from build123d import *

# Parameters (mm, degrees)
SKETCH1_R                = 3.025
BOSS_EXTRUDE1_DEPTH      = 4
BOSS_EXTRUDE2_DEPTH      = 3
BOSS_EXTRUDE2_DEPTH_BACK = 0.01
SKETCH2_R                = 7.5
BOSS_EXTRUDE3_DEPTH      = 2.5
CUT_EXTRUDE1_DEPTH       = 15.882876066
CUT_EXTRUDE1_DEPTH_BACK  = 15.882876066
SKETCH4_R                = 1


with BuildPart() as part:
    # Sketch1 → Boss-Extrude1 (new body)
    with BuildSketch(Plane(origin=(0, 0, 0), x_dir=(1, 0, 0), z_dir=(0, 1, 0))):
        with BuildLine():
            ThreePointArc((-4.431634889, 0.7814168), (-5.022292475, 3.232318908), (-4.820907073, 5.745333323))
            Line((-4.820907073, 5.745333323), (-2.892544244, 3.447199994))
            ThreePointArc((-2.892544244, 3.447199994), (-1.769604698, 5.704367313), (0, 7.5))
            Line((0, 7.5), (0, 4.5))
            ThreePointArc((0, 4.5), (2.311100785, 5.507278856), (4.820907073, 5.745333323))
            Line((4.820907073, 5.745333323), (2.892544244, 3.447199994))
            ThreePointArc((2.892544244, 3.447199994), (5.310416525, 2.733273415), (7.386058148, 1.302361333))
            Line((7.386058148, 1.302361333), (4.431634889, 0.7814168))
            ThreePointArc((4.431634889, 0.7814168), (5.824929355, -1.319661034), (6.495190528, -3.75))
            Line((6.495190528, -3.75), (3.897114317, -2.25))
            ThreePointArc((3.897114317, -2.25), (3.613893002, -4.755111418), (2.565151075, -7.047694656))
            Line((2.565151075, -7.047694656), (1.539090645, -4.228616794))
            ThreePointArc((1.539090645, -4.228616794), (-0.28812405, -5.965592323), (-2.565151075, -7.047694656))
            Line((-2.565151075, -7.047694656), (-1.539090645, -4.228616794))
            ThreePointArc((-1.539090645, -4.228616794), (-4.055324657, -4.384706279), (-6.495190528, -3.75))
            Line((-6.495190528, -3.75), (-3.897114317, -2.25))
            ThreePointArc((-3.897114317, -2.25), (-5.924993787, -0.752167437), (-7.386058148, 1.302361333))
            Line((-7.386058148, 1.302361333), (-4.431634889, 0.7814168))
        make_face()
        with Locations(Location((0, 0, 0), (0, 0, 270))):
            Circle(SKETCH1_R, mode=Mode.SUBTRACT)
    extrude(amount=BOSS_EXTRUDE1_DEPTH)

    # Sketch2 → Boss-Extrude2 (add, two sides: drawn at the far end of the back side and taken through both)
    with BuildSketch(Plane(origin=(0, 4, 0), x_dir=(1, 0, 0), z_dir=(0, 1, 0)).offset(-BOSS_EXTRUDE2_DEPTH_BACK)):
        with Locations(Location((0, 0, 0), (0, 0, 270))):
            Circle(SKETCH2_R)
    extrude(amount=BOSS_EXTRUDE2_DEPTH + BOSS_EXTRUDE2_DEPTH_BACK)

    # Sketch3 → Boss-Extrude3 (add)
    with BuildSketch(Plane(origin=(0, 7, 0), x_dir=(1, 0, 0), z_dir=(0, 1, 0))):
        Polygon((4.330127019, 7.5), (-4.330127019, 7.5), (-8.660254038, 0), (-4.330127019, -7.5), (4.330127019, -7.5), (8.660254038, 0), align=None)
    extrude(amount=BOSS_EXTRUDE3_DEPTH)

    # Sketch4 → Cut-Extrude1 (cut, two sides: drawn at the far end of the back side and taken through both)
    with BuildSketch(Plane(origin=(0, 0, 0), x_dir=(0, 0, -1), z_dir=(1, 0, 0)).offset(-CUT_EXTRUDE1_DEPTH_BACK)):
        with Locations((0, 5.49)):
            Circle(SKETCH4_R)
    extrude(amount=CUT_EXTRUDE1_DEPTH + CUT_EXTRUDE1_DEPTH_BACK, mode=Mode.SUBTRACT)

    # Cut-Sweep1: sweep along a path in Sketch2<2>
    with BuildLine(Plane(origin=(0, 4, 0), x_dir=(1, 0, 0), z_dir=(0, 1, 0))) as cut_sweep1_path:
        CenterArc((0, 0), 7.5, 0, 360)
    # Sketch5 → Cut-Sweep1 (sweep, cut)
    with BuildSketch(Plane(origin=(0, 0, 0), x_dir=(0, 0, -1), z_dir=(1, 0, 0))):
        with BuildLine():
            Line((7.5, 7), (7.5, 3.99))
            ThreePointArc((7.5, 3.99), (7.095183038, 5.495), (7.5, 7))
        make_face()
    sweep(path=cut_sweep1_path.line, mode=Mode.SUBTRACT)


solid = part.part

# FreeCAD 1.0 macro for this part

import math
import FreeCAD as App
import Part
import Sketcher
Q = App.Units.Quantity

doc = App.newDocument("Part")
params = doc.addObject("Spreadsheet::Sheet", "Params")
for row, (alias, value) in enumerate([
    ("sketch1_radius", "8 mm"),
    ("sketch1_diameter", "6.05 mm"),
    ("sketch1_height", "3 mm"),
    ("sketch1_length", "3 mm"),
    ("pad1_length", "4 mm"),
    ("sketch2_diameter", "15 mm"),
    ("pad2_length", "3 mm"),
    ("pad2_length2", "0.01 mm"),
    ("pad3_length", "2.5 mm"),
    ("sketch4_diameter", "2 mm"),
    ("sketch5_radius", "3 mm"),
    ("sketch5_width", "3.01 mm"),
    ("sketch6_diameter", "15 mm"),
], start=1):
    params.set(f"A{row}", alias)
    params.set(f"B{row}", "=" + value)
    params.setAlias(f"B{row}", alias)

body = doc.addObject("PartDesign::Body", "Body")

# Sketch on XZ plane
sketch1 = body.newObject("Sketcher::SketchObject", "Sketch")
sketch1.AttachmentSupport = (doc.getObject("XZ_Plane"), [""])
sketch1.MapMode = "FlatFace"
sketch1.addGeometry([
    Part.ArcOfCircle(Part.Circle(App.Vector(3, -3.9, 0), App.Vector(0, 0, 1), 8), math.radians(157), math.radians(194)),  # 0
    Part.LineSegment(App.Vector(-4.4, -0.8, 0), App.Vector(-7.4, -1.3, 0)),  # 1
    Part.ArcOfCircle(Part.Circle(App.Vector(-0.2, -4.9, 0), App.Vector(0, 0, 1), 8), math.radians(117), math.radians(154)),  # 2
    Part.LineSegment(App.Vector(-3.9, 2.2, 0), App.Vector(-6.5, 3.8, 0)),  # 3
    Part.ArcOfCircle(Part.Circle(App.Vector(-3.3, -3.6, 0), App.Vector(0, 0, 1), 8), math.radians(77), math.radians(114)),  # 4
    Part.LineSegment(App.Vector(-1.5, 4.2, 0), App.Vector(-2.6, 7, 0)),  # 5
    Part.ArcOfCircle(Part.Circle(App.Vector(-4.8, -0.6, 0), App.Vector(0, 0, 1), 8), math.radians(37), math.radians(74)),  # 6
    Part.LineSegment(App.Vector(1.5, 4.2, 0), App.Vector(2.6, 7, 0)),  # 7
    Part.ArcOfCircle(Part.Circle(App.Vector(-4.1, 2.6, 0), App.Vector(0, 0, 1), 8), math.radians(-3), math.radians(34)),  # 8
    Part.LineSegment(App.Vector(3.9, 2.2, 0), App.Vector(6.5, 3.8, 0)),  # 9
    Part.ArcOfCircle(Part.Circle(App.Vector(-1.5, 4.6, 0), App.Vector(0, 0, 1), 8), math.radians(-43), math.radians(-6)),  # 10
    Part.LineSegment(App.Vector(4.4, -0.8, 0), App.Vector(7.4, -1.3, 0)),  # 11
    Part.ArcOfCircle(Part.Circle(App.Vector(1.9, 4.5, 0), App.Vector(0, 0, 1), 8), math.radians(-83), math.radians(-46)),  # 12
    Part.LineSegment(App.Vector(2.9, -3.4, 0), App.Vector(4.8, -5.7, 0)),  # 13
    Part.ArcOfCircle(Part.Circle(App.Vector(4.3, 2.2, 0), App.Vector(0, 0, 1), 8), math.radians(-123), math.radians(-86)),  # 14
    Part.LineSegment(App.Vector(0, -4.5, 0), App.Vector(0, -7.5, 0)),  # 15
    Part.ArcOfCircle(Part.Circle(App.Vector(4.7, -1.1, 0), App.Vector(0, 0, 1), 8), math.radians(-163), math.radians(-126)),  # 16
    Part.LineSegment(App.Vector(-2.9, -3.4, 0), App.Vector(-4.8, -5.7, 0)),  # 17
    Part.Circle(App.Vector(0, 0, 0), App.Vector(0, 0, 1), 3),  # 18
], False)
sketch1.addConstraint([
    Sketcher.Constraint("Coincident", 0, 1, 1, 1),
    Sketcher.Constraint("Coincident", 1, 2, 2, 2),
    Sketcher.Constraint("Coincident", 2, 1, 3, 1),
    Sketcher.Constraint("Coincident", 3, 2, 4, 2),
    Sketcher.Constraint("Coincident", 4, 1, 5, 1),
    Sketcher.Constraint("Coincident", 5, 2, 6, 2),
    Sketcher.Constraint("Coincident", 6, 1, 7, 1),
    Sketcher.Constraint("Coincident", 7, 2, 8, 2),
    Sketcher.Constraint("Coincident", 8, 1, 9, 1),
    Sketcher.Constraint("Coincident", 9, 2, 10, 2),
    Sketcher.Constraint("Coincident", 10, 1, 11, 1),
    Sketcher.Constraint("Coincident", 11, 2, 12, 2),
    Sketcher.Constraint("Coincident", 12, 1, 13, 1),
    Sketcher.Constraint("Coincident", 13, 2, 14, 2),
    Sketcher.Constraint("Coincident", 14, 1, 15, 1),
    Sketcher.Constraint("Coincident", 15, 2, 16, 2),
    Sketcher.Constraint("Coincident", 16, 1, 17, 1),
    Sketcher.Constraint("Coincident", 17, 2, 0, 2),
    Sketcher.Constraint("Vertical", 15),
    Sketcher.Constraint("Coincident", 18, 3, -1, 1),
    Sketcher.Constraint("Equal", 0, 2),
    Sketcher.Constraint("Equal", 2, 4),
    Sketcher.Constraint("Equal", 4, 6),
    Sketcher.Constraint("Equal", 6, 8),
    Sketcher.Constraint("Equal", 8, 10),
    Sketcher.Constraint("Equal", 10, 12),
    Sketcher.Constraint("Equal", 12, 14),
    Sketcher.Constraint("Equal", 14, 16),
    Sketcher.Constraint("Symmetric", 4, 1, 6, 1, -2),
    Sketcher.Constraint("Symmetric", 5, 2, 7, 2, -2),
    Sketcher.Constraint("Symmetric", 2, 1, 8, 1, -2),
    Sketcher.Constraint("Symmetric", 3, 2, 9, 2, -2),
    Sketcher.Constraint("Symmetric", 0, 1, 10, 1, -2),
    Sketcher.Constraint("Symmetric", 1, 2, 11, 2, -2),
    Sketcher.Constraint("Symmetric", 12, 1, 16, 1, -2),
    Sketcher.Constraint("Symmetric", 13, 2, 17, 2, -2),
    Sketcher.Constraint("PointOnObject", 14, 1, -2),
    Sketcher.Constraint("Equal", 1, 3),
    Sketcher.Constraint("Equal", 3, 5),
    Sketcher.Constraint("Equal", 11, 13),
    Sketcher.Constraint("Radius", 0, Q("8 mm")),
    Sketcher.Constraint("Diameter", 18, Q("6.05 mm")),
    Sketcher.Constraint("DistanceY", 15, 2, 15, 1, Q("3 mm")),
    Sketcher.Constraint("Angle", 1, Q("-170 deg")),
    Sketcher.Constraint("Angle", 3, Q("150 deg")),
    Sketcher.Constraint("Angle", 5, Q("110 deg")),
    Sketcher.Constraint("Angle", 13, Q("-50 deg")),
    Sketcher.Constraint("Distance", 1, Q("3 mm")),
    Sketcher.Constraint("DistanceY", 14, 1, -1, 1, Q("4.5 mm")),
    Sketcher.Constraint("DistanceY", -1, 1, 2, 1, Q("2.25 mm")),
    Sketcher.Constraint("DistanceY", 12, 1, -1, 1, Q("3.4472 mm")),
    Sketcher.Constraint("DistanceX", 6, 3, 4, 3, Q("1.531198 mm")),
    Sketcher.Constraint("DistanceX", 0, 3, 16, 3, Q("1.788799 mm")),
    Sketcher.Constraint("DistanceX", 4, 1, 12, 3, Q("3.4034 mm")),
    Sketcher.Constraint("DistanceX", 8, 3, 5, 2, Q("1.529401 mm")),
    Sketcher.Constraint("DistanceX", 6, 1, 9, 2, Q("4.9561 mm")),
    Sketcher.Constraint("DistanceY", 0, 3, 11, 2, Q("2.5554 mm")),
])
sketch1.setExpression("Constraints[40]", "Params.sketch1_radius")
sketch1.setExpression("Constraints[41]", "Params.sketch1_diameter")
sketch1.setExpression("Constraints[42]", "Params.sketch1_height")
sketch1.setExpression("Constraints[47]", "Params.sketch1_length")
pad1 = body.newObject("PartDesign::Pad", "Pad")
pad1.Profile = sketch1
pad1.setExpression("Length", "Params.pad1_length")
pad1.Reversed = True

# Sketch on XZ plane
sketch2 = body.newObject("Sketcher::SketchObject", "Sketch001")
sketch2.AttachmentSupport = (doc.getObject("XZ_Plane"), [""])
sketch2.MapMode = "FlatFace"
sketch2.AttachmentOffset = App.Placement(App.Vector(0, 0, -4), App.Rotation())
sketch2.addGeometry(Part.Circle(App.Vector(0, 0, 0), App.Vector(0, 0, 1), 8), False)
sketch2.addConstraint([
    Sketcher.Constraint("Coincident", 0, 3, -1, 1),
    Sketcher.Constraint("Diameter", 0, Q("15 mm")),
])
sketch2.setExpression("Constraints[1]", "Params.sketch2_diameter")
pad2 = body.newObject("PartDesign::Pad", "Pad001")
pad2.Profile = sketch2
pad2.Type = "TwoLengths"
pad2.setExpression("Length", "Params.pad2_length")
pad2.setExpression("Length2", "Params.pad2_length2")
pad2.Reversed = True

# Sketch on XZ plane
sketch3 = body.newObject("Sketcher::SketchObject", "Sketch002")
sketch3.AttachmentSupport = (doc.getObject("XZ_Plane"), [""])
sketch3.MapMode = "FlatFace"
sketch3.AttachmentOffset = App.Placement(App.Vector(0, 0, -7), App.Rotation())
sketch3.addGeometry([
    Part.LineSegment(App.Vector(4, -8, 0), App.Vector(-4, -8, 0)),  # 0
    Part.LineSegment(App.Vector(-4, -8, 0), App.Vector(-9, 0, 0)),  # 1
    Part.LineSegment(App.Vector(-9, 0, 0), App.Vector(-4, 8, 0)),  # 2
    Part.LineSegment(App.Vector(-4, 8, 0), App.Vector(4, 8, 0)),  # 3
    Part.LineSegment(App.Vector(4, 8, 0), App.Vector(9, 0, 0)),  # 4
    Part.LineSegment(App.Vector(9, 0, 0), App.Vector(4, -8, 0)),  # 5
], False)
sketch3.addConstraint([
    Sketcher.Constraint("Coincident", 0, 2, 1, 1),
    Sketcher.Constraint("Coincident", 1, 2, 2, 1),
    Sketcher.Constraint("Coincident", 2, 2, 3, 1),
    Sketcher.Constraint("Coincident", 3, 2, 4, 1),
    Sketcher.Constraint("Coincident", 4, 2, 5, 1),
    Sketcher.Constraint("Coincident", 5, 2, 0, 1),
    Sketcher.Constraint("Horizontal", 0),
    Sketcher.Constraint("Horizontal", 3),
    Sketcher.Constraint("Symmetric", 0, 2, 3, 2, -1, 1),
    Sketcher.Constraint("Symmetric", 1, 2, 4, 2, -1, 1),
    Sketcher.Constraint("PointOnObject", 1, 2, -1),
    Sketcher.Constraint("Parallel", 2, 5),
    Sketcher.Constraint("Vertical", 0, 2, 2, 2),
    Sketcher.Constraint("Angle", 1, Q("120 deg")),
    Sketcher.Constraint("DistanceY", 0, 2, 2, 2, Q("15 mm")),
    Sketcher.Constraint("DistanceX", 0, 2, 0, 1, Q("8.660254 mm")),
])
pad3 = body.newObject("PartDesign::Pad", "Pad002")
pad3.Profile = sketch3
pad3.setExpression("Length", "Params.pad3_length")
pad3.Reversed = True

# Sketch on YZ plane
sketch4 = body.newObject("Sketcher::SketchObject", "Sketch003")
sketch4.AttachmentSupport = (doc.getObject("YZ_Plane"), [""])
sketch4.MapMode = "FlatFace"
sketch4.addGeometry(Part.Circle(App.Vector(5.5, 0, 0), App.Vector(0, 0, 1), 1), False)
sketch4.addConstraint([
    Sketcher.Constraint("PointOnObject", 0, 3, -1),
    Sketcher.Constraint("Diameter", 0, Q("2 mm")),
    Sketcher.Constraint("DistanceX", -1, 1, 0, 3, Q("5.49 mm")),
])
sketch4.setExpression("Constraints[1]", "Params.sketch4_diameter")
pocket1 = body.newObject("PartDesign::Pocket", "Pocket")
pocket1.Profile = sketch4
pocket1.Type = "ThroughAll"
pocket1.Midplane = True

# Sketch on YZ plane
sketch5 = body.newObject("Sketcher::SketchObject", "Sketch004")
sketch5.AttachmentSupport = (doc.getObject("YZ_Plane"), [""])
sketch5.MapMode = "FlatFace"
sketch5.addGeometry([
    Part.LineSegment(App.Vector(4, -7.5, 0), App.Vector(7, -7.5, 0)),
    Part.ArcOfCircle(Part.Circle(App.Vector(5.5, -10.1, 0), App.Vector(0, 0, 1), 3), math.radians(60), math.radians(120)),
], False)
sketch5.addConstraint([
    Sketcher.Constraint("Coincident", 0, 1, 1, 2),
    Sketcher.Constraint("Coincident", 1, 1, 0, 2),
    Sketcher.Constraint("Horizontal", 0),
    Sketcher.Constraint("Radius", 1, Q("3 mm")),
    Sketcher.Constraint("DistanceX", -1, 1, 1, 1, Q("7 mm")),
    Sketcher.Constraint("DistanceX", 0, 1, 0, 2, Q("3.01 mm")),
    Sketcher.Constraint("DistanceY", 0, 1, -1, 1, Q("7.5 mm")),
])
sketch5.setExpression("Constraints[3]", "Params.sketch5_radius")
sketch5.setExpression("Constraints[5]", "Params.sketch5_width")

# Sketch on XZ plane
sketch6 = body.newObject("Sketcher::SketchObject", "Sketch005")
sketch6.AttachmentSupport = (doc.getObject("XZ_Plane"), [""])
sketch6.MapMode = "FlatFace"
sketch6.AttachmentOffset = App.Placement(App.Vector(0, 0, -4), App.Rotation())
sketch6.addGeometry(Part.Circle(App.Vector(0, 0, 0), App.Vector(0, 0, 1), 8), False)
sketch6.addConstraint([
    Sketcher.Constraint("Coincident", 0, 3, -1, 1),
    Sketcher.Constraint("Diameter", 0, Q("15 mm")),
])
sketch6.setExpression("Constraints[1]", "Params.sketch6_diameter")
doc.recompute()

subtractivepipe = body.newObject("PartDesign::SubtractivePipe", "SubtractivePipe")
subtractivepipe.Profile = sketch5
subtractivepipe.Spine = (sketch6, ["Edge1"])

doc.recompute()
